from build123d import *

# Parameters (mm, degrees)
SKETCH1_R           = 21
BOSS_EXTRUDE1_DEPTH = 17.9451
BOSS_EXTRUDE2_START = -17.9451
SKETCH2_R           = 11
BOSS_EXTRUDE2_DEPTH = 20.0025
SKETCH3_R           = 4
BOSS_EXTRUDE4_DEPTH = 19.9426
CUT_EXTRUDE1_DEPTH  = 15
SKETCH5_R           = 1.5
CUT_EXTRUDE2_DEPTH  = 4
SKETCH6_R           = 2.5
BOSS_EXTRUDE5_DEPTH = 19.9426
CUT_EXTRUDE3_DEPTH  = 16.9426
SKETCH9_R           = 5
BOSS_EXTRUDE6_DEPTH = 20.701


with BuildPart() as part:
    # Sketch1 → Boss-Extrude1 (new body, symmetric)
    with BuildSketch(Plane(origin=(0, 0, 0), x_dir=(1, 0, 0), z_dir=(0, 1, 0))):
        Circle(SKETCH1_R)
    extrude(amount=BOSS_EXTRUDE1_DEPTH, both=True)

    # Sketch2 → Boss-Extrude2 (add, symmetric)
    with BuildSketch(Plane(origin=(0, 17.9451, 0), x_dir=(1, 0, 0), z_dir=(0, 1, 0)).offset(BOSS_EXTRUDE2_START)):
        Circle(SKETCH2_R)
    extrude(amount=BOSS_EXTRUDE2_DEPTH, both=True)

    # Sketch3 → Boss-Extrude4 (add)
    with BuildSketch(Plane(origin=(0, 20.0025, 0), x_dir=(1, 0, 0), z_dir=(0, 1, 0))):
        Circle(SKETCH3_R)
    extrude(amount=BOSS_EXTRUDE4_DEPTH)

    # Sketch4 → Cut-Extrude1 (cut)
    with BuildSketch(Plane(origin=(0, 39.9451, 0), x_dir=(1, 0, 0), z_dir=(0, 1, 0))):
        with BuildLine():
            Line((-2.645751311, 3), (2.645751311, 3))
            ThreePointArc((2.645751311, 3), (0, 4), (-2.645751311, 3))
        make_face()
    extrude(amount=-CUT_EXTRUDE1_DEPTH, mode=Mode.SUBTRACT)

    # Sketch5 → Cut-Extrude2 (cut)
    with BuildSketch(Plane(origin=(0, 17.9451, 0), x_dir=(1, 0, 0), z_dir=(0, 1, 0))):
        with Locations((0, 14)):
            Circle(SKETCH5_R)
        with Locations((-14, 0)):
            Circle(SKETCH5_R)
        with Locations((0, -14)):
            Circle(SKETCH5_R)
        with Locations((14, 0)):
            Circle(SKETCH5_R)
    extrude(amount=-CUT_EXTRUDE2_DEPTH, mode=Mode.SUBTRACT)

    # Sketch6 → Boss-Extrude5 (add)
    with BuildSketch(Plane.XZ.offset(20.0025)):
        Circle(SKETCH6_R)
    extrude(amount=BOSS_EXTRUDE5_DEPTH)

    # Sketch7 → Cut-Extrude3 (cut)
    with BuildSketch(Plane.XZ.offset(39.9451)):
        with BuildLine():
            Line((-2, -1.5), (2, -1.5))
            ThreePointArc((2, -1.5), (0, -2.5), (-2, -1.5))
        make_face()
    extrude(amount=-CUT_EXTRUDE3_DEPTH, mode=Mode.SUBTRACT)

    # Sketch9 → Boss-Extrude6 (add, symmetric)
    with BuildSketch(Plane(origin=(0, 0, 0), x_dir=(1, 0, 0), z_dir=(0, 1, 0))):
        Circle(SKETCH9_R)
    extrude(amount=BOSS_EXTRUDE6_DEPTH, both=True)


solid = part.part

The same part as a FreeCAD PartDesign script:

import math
import FreeCAD as App
import Part
import Sketcher
from FreeCAD import Vector

doc = App.newDocument("Part")
body = doc.addObject("PartDesign::Body", "Body")

# Sketch on XZ plane
sketch1 = body.newObject("Sketcher::SketchObject", "Sketch")
sketch1.AttachmentSupport = (doc.getObject("XZ_Plane"), [""])
sketch1.MapMode = "FlatFace"
sketch1.addGeometry(Part.Circle(Vector(0, 0, 0), Vector(0, 0, 1), 21), False)
sketch1.addConstraint([
    Sketcher.Constraint("Coincident", 0, 3, -1, 1),
    Sketcher.Constraint("Diameter", 0, 42.0),
])
pad1 = body.newObject("PartDesign::Pad", "Pad")
pad1.Profile = sketch1
pad1.Length = 35.8902
pad1.Midplane = True

# Sketch on XZ plane
sketch2 = body.newObject("Sketcher::SketchObject", "Sketch001")
sketch2.AttachmentSupport = (doc.getObject("XZ_Plane"), [""])
sketch2.MapMode = "FlatFace"
sketch2.addGeometry(Part.Circle(Vector(0, 0, 0), Vector(0, 0, 1), 11), False)
sketch2.addConstraint([
    Sketcher.Constraint("Coincident", 0, 3, -1, 1),
    Sketcher.Constraint("Diameter", 0, 22.0),
])
pad2 = body.newObject("PartDesign::Pad", "Pad001")
pad2.Profile = sketch2
pad2.Length = 40.005
pad2.Midplane = True

# Sketch on XZ plane
sketch3 = body.newObject("Sketcher::SketchObject", "Sketch002")
sketch3.AttachmentSupport = (doc.getObject("XZ_Plane"), [""])
sketch3.MapMode = "FlatFace"
sketch3.AttachmentOffset = App.Placement(Vector(0, 0, -20.0025), App.Rotation())
sketch3.addGeometry(Part.Circle(Vector(0, 0, 0), Vector(0, 0, 1), 4), False)
sketch3.addConstraint([
    Sketcher.Constraint("Coincident", 0, 3, -1, 1),
    Sketcher.Constraint("Diameter", 0, 8.0),
])
pad3 = body.newObject("PartDesign::Pad", "Pad002")
pad3.Profile = sketch3
pad3.Length = 19.9426
pad3.Reversed = True

# Sketch on XZ plane
sketch4 = body.newObject("Sketcher::SketchObject", "Sketch003")
sketch4.AttachmentSupport = (doc.getObject("XZ_Plane"), [""])
sketch4.MapMode = "FlatFace"
sketch4.AttachmentOffset = App.Placement(Vector(0, 0, -39.9451), App.Rotation())
sketch4.addGeometry([
    Part.LineSegment(Vector(-2.6, -3, 0), Vector(2.6, -3, 0)),
    Part.ArcOfCircle(Part.Circle(Vector(0, 0, 0), Vector(0, 0, 1), 4), math.radians(-131), math.radians(-49)),
], False)
sketch4.addConstraint([
    Sketcher.Constraint("Coincident", 0, 1, 1, 1),
    Sketcher.Constraint("Coincident", 1, 2, 0, 2),
    Sketcher.Constraint("Horizontal", 0),
    Sketcher.Constraint("Coincident", 1, 3, -1, 1),
    Sketcher.Constraint("Radius", 1, 4.0),
    Sketcher.Constraint("DistanceY", 0, 1, -1, 1, 3.0),
])
pocket1 = body.newObject("PartDesign::Pocket", "Pocket")
pocket1.Profile = sketch4
pocket1.Length = 15
pocket1.Reversed = True

# Sketch on XZ plane
sketch5 = body.newObject("Sketcher::SketchObject", "Sketch004")
sketch5.AttachmentSupport = (doc.getObject("XZ_Plane"), [""])
sketch5.MapMode = "FlatFace"
sketch5.AttachmentOffset = App.Placement(Vector(0, 0, -17.9451), App.Rotation())
sketch5.addGeometry([
    Part.Circle(Vector(0, -14, 0), Vector(0, 0, 1), 1.5),
    Part.Circle(Vector(-14, 0, 0), Vector(0, 0, 1), 1.5),
    Part.Circle(Vector(0, 14, 0), Vector(0, 0, 1), 1.5),
    Part.Circle(Vector(14, 0, 0), Vector(0, 0, 1), 1.5),
], False)
sketch5.addConstraint([
    Sketcher.Constraint("Equal", 0, 1),
    Sketcher.Constraint("Equal", 1, 2),
    Sketcher.Constraint("Equal", 2, 3),
    Sketcher.Constraint("Symmetric", 0, 3, 2, 3, -1, 1),
    Sketcher.Constraint("Symmetric", 1, 3, 3, 3, -1, 1),
    Sketcher.Constraint("PointOnObject", 0, 3, -2),
    Sketcher.Constraint("PointOnObject", 1, 3, -1),
    Sketcher.Constraint("Diameter", 0, 3.0),
    Sketcher.Constraint("DistanceY", 0, 3, -1, 1, 14.0),
    Sketcher.Constraint("DistanceX", 1, 3, -1, 1, 14.0),
])
pocket2 = body.newObject("PartDesign::Pocket", "Pocket001")
pocket2.Profile = sketch5
pocket2.Length = 4
pocket2.Reversed = True

# Sketch on XZ plane
sketch6 = body.newObject("Sketcher::SketchObject", "Sketch005")
sketch6.AttachmentSupport = (doc.getObject("XZ_Plane"), [""])
sketch6.MapMode = "FlatFace"
sketch6.AttachmentOffset = App.Placement(Vector(0, 0, 20.0025), App.Rotation())
sketch6.addGeometry(Part.Circle(Vector(0, 0, 0), Vector(0, 0, 1), 2.5), False)
sketch6.addConstraint([
    Sketcher.Constraint("Coincident", 0, 3, -1, 1),
    Sketcher.Constraint("Diameter", 0, 5.0),
])
pad4 = body.newObject("PartDesign::Pad", "Pad003")
pad4.Profile = sketch6
pad4.Length = 19.9426

# Sketch on XZ plane
sketch7 = body.newObject("Sketcher::SketchObject", "Sketch006")
sketch7.AttachmentSupport = (doc.getObject("XZ_Plane"), [""])
sketch7.MapMode = "FlatFace"
sketch7.AttachmentOffset = App.Placement(Vector(0, 0, 39.9451), App.Rotation())
sketch7.addGeometry([
    Part.LineSegment(Vector(2, -1.5, 0), Vector(-2, -1.5, 0)),
    Part.ArcOfCircle(Part.Circle(Vector(0, 0, 0), Vector(0, 0, 1), 2.5), math.radians(-143), math.radians(-37)),
], False)
sketch7.addConstraint([
    Sketcher.Constraint("Coincident", 0, 1, 1, 2),
    Sketcher.Constraint("Coincident", 1, 1, 0, 2),
    Sketcher.Constraint("Horizontal", 0),
    Sketcher.Constraint("Coincident", 1, 3, -1, 1),
    Sketcher.Constraint("Radius", 1, 2.5),
    Sketcher.Constraint("DistanceX", 0, 2, 0, 1, 4.0),
])
pocket3 = body.newObject("PartDesign::Pocket", "Pocket002")
pocket3.Profile = sketch7
pocket3.Length = 16.9426

# Sketch on XZ plane
sketch8 = body.newObject("Sketcher::SketchObject", "Sketch007")
sketch8.AttachmentSupport = (doc.getObject("XZ_Plane"), [""])
sketch8.MapMode = "FlatFace"
sketch8.addGeometry(Part.Circle(Vector(0, 0, 0), Vector(0, 0, 1), 5), False)
sketch8.addConstraint([
    Sketcher.Constraint("Coincident", 0, 3, -1, 1),
    Sketcher.Constraint("Diameter", 0, 10.0),
])
pad5 = body.newObject("PartDesign::Pad", "Pad004")
pad5.Profile = sketch8
pad5.Length = 41.402
pad5.Midplane = True

doc.recompute()
